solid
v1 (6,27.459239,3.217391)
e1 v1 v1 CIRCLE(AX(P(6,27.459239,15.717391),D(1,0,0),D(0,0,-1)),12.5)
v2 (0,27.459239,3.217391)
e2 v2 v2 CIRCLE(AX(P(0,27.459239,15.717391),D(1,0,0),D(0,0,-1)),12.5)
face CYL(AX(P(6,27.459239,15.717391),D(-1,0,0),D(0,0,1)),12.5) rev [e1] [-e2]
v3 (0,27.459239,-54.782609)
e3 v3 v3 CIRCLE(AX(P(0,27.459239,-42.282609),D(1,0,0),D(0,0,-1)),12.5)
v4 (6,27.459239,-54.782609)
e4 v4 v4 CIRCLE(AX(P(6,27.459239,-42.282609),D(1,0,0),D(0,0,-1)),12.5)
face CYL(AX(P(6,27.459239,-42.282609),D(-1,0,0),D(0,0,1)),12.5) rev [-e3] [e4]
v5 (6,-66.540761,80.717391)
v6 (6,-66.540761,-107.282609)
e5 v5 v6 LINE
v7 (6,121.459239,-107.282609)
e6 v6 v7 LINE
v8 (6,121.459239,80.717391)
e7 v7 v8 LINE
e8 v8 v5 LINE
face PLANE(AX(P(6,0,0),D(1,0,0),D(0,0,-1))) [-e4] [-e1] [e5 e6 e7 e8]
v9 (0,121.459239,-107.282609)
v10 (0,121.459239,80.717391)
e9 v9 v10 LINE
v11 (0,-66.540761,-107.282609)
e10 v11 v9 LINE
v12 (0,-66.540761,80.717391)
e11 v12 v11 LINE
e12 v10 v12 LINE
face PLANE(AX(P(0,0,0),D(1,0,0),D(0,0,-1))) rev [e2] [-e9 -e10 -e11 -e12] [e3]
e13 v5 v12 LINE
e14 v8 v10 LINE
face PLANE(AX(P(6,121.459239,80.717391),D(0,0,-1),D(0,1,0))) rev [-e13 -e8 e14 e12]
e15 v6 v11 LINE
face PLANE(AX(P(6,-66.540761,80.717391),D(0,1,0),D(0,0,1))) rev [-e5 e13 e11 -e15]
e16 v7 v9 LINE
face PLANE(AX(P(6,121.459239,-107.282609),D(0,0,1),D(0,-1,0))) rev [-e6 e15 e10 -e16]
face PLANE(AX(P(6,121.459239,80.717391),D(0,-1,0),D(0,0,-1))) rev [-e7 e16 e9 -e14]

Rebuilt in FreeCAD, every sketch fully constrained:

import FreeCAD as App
import Part
import Sketcher
Q = App.Units.Quantity

doc = App.newDocument("Part")
body = doc.addObject("PartDesign::Body", "Body")

sketch1 = doc.addObject("Sketcher::SketchObject", "Sketch")
body.addObject(sketch1)
sketch1.AttachmentSupport = (doc.YZ_Plane, [""])
sketch1.MapMode = "FlatFace"
sketch1.addGeometry(Part.LineSegment(App.Vector(121, 81, 0), App.Vector(-67, 81, 0)), False)
sketch1.addGeometry(Part.LineSegment(App.Vector(-67, 81, 0), App.Vector(-67, -107, 0)), False)
sketch1.addGeometry(Part.LineSegment(App.Vector(-67, -107, 0), App.Vector(121, -107, 0)), False)
sketch1.addGeometry(Part.LineSegment(App.Vector(121, -107, 0), App.Vector(121, 81, 0)), False)
sketch1.addGeometry(Part.Circle(App.Vector(27, 16, 0), App.Vector(0, 0, 1), 12), False)
sketch1.addGeometry(Part.Circle(App.Vector(27, -42, 0), App.Vector(0, 0, 1), 12), False)
sketch1.addConstraint(Sketcher.Constraint("Coincident", 0, 2, 1, 1))
sketch1.addConstraint(Sketcher.Constraint("Coincident", 1, 2, 2, 1))
sketch1.addConstraint(Sketcher.Constraint("Coincident", 2, 2, 3, 1))
sketch1.addConstraint(Sketcher.Constraint("Coincident", 3, 2, 0, 1))
sketch1.addConstraint(Sketcher.Constraint("Horizontal", 0))
sketch1.addConstraint(Sketcher.Constraint("Vertical", 1))
sketch1.addConstraint(Sketcher.Constraint("Horizontal", 2))
sketch1.addConstraint(Sketcher.Constraint("Vertical", 3))
sketch1.addConstraint(Sketcher.Constraint("Equal", 4, 5))
sketch1.addConstraint(Sketcher.Constraint("Vertical", 4, 3, 5, 3))
sketch1.addConstraint(Sketcher.Constraint("Equal", 2, 1))
sketch1.addConstraint(Sketcher.Constraint("Diameter", 4, Q("25 mm")))
sketch1.addConstraint(Sketcher.Constraint("DistanceX", 0, 2, 0, 1, Q("188 mm")))
sketch1.addConstraint(Sketcher.Constraint("DistanceY", 5, 3, 4, 3, Q("58 mm")))
sketch1.addConstraint(Sketcher.Constraint("DistanceX", 0, 2, 4, 3, Q("94 mm")))
sketch1.addConstraint(Sketcher.Constraint("DistanceY", 4, 3, 0, 2, Q("65 mm")))
sketch1.addConstraint(Sketcher.Constraint("DistanceX", -1, 1, 4, 3, Q("27.459239 mm")))
sketch1.addConstraint(Sketcher.Constraint("DistanceY", -1, 1, 4, 3, Q("15.717391 mm")))
pad1 = doc.addObject("PartDesign::Pad", "Pad")
body.addObject(pad1)
pad1.Profile = sketch1
pad1.Length = 6

doc.recompute()
